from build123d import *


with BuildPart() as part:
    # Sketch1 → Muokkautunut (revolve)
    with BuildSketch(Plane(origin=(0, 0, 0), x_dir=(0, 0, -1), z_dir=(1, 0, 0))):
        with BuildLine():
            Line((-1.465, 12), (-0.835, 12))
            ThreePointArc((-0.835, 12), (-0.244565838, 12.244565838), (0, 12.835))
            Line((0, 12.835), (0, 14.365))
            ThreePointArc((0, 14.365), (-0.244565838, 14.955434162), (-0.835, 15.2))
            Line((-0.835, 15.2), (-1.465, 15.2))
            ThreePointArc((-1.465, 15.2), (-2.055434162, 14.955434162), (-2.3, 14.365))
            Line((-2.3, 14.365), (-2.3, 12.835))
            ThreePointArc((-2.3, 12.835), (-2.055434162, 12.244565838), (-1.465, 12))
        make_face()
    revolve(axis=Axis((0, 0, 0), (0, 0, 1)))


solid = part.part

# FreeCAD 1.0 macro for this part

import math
import FreeCAD as App
import Part
import Sketcher

V = App.Vector

doc = App.newDocument("Part")
body = doc.addObject("PartDesign::Body", "Body")

sketch1 = body.newObject("Sketcher::SketchObject", "Sketch")
sketch1.AttachmentSupport = (doc.getObject("YZ_Plane"), [""])
sketch1.MapMode = "FlatFace"
sketch1.addGeometry([
    Part.LineSegment(V(12, 1.5, 0), V(12, 0.8, 0)),
    Part.ArcOfCircle(Part.Circle(V(12.8, 0.8, 0), V(0, 0, 1), 0.8), math.radians(-180), math.radians(-90)),
    Part.LineSegment(V(12.8, 0, 0), V(14.4, 0, 0)),
    Part.ArcOfCircle(Part.Circle(V(14.4, 0.8, 0), V(0, 0, 1), 0.8), math.radians(-90), math.radians(0)),
    Part.LineSegment(V(15.2, 0.8, 0), V(15.2, 1.5, 0)),
    Part.ArcOfCircle(Part.Circle(V(14.4, 1.5, 0), V(0, 0, 1), 0.8), math.radians(0), math.radians(90)),
    Part.LineSegment(V(14.4, 2.3, 0), V(12.8, 2.3, 0)),
    Part.ArcOfCircle(Part.Circle(V(12.8, 1.5, 0), V(0, 0, 1), 0.8), math.radians(90), math.radians(180)),
], False)
sketch1.addConstraint([
    Sketcher.Constraint("Tangent", 0, 2, 1, 1),
    Sketcher.Constraint("Tangent", 1, 2, 2, 1),
    Sketcher.Constraint("Tangent", 2, 2, 3, 1),
    Sketcher.Constraint("Tangent", 3, 2, 4, 1),
    Sketcher.Constraint("Tangent", 4, 2, 5, 1),
    Sketcher.Constraint("Tangent", 5, 2, 6, 1),
    Sketcher.Constraint("Tangent", 6, 2, 7, 1),
    Sketcher.Constraint("Tangent", 7, 2, 0, 1),
    Sketcher.Constraint("Vertical", 0),
    Sketcher.Constraint("Horizontal", 2),
    Sketcher.Constraint("Vertical", 4),
    Sketcher.Constraint("Horizontal", 6),
    Sketcher.Constraint("Equal", 1, 3),
    Sketcher.Constraint("Equal", 3, 5),
    Sketcher.Constraint("Equal", 5, 7),
    Sketcher.Constraint("PointOnObject", 1, 2, -1),
    Sketcher.Constraint("DistanceX", -1, 1, 0, 2, 12.0),
    Sketcher.Constraint("Radius", 1, 0.835),
    Sketcher.Constraint("DistanceX", 2, 1, 2, 2, 1.53),
    Sketcher.Constraint("DistanceY", 0, 2, 0, 1, 0.63),
])
revolution = body.newObject("PartDesign::Revolution", "Revolution")
revolution.Profile = sketch1
revolution.ReferenceAxis = (sketch1, ["V_Axis"])
revolution.Angle = 360

doc.recompute()
